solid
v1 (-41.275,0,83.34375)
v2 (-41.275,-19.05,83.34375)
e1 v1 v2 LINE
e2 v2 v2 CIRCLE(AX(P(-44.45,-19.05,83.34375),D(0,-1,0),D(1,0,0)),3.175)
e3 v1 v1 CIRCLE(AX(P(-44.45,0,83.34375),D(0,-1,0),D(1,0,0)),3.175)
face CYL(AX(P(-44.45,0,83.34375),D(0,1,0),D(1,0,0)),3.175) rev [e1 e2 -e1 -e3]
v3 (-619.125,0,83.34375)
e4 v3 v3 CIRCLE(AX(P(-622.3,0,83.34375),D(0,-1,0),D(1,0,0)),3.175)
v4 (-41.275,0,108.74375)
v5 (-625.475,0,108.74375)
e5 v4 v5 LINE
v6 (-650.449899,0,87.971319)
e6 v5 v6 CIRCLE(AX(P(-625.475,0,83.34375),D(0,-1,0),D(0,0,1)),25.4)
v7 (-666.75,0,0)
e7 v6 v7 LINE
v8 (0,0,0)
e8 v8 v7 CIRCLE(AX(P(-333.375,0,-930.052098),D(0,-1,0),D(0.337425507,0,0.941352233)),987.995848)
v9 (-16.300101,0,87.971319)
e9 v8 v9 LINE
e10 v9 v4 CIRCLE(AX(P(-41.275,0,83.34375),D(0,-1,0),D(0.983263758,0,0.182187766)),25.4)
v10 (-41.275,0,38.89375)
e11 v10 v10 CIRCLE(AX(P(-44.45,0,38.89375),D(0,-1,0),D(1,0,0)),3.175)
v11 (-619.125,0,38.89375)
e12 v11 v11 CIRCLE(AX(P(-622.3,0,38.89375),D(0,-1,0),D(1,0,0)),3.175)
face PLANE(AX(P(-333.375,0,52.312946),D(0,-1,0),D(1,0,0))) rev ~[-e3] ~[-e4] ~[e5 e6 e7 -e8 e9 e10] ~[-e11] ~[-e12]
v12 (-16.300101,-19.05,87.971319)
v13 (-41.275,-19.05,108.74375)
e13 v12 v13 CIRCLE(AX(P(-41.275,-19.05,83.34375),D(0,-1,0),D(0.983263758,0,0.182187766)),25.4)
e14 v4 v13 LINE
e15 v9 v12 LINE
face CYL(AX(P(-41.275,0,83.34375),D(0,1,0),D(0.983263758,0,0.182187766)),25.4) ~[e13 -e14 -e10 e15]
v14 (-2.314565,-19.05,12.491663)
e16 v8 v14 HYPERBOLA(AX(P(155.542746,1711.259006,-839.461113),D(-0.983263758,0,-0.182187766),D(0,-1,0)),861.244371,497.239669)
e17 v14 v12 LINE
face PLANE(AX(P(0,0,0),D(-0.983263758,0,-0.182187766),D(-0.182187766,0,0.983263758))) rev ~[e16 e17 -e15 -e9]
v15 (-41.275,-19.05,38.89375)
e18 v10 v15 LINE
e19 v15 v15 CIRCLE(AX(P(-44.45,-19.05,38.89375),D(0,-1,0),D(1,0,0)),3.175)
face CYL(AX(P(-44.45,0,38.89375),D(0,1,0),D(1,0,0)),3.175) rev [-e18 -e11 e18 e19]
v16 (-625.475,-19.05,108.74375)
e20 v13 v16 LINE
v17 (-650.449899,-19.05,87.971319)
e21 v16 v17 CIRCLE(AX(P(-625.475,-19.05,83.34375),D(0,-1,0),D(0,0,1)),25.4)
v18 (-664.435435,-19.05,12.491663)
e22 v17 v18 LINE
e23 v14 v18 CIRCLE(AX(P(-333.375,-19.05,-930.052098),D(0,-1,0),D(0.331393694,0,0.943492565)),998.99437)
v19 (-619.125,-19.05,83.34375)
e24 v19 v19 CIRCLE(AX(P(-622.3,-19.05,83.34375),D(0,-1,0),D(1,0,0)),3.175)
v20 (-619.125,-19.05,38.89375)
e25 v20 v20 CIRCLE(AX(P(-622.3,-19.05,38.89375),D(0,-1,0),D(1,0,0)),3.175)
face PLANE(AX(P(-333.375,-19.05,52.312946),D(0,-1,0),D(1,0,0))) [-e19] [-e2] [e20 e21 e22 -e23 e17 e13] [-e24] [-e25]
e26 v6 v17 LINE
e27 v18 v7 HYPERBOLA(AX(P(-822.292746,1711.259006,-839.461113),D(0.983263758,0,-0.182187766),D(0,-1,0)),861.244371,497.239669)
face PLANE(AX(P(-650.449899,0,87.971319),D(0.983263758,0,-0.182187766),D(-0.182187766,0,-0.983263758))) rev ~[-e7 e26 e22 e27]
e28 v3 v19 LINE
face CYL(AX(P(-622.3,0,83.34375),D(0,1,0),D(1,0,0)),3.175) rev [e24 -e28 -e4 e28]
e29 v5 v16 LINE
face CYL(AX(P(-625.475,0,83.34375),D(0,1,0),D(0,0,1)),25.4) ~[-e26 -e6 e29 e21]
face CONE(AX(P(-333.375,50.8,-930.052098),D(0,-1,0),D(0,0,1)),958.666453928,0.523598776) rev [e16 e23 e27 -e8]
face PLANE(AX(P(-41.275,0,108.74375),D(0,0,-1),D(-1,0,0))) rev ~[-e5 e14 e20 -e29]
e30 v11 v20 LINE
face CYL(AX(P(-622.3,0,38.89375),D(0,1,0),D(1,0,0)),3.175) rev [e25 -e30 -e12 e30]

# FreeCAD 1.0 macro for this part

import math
import FreeCAD as App
import Part
import Sketcher

V = App.Vector
Q = App.Units.Quantity

doc = App.newDocument("Part")
body = doc.addObject("PartDesign::Body", "Body")

# Sketch on XZ plane
sketch1 = doc.addObject("Sketcher::SketchObject", "Sketch")
body.addObject(sketch1)
sketch1.AttachmentSupport = (doc.XZ_Plane, [""])
sketch1.MapMode = "FlatFace"
sketch1.addGeometry([
    Part.LineSegment(V(-666.8, 0, 0), V(0, 0, 0)),  # 0
    Part.LineSegment(V(0, 0, 0), V(-16.3, 88, 0)),  # 1
    Part.ArcOfCircle(Part.Circle(V(-41.3, 83.3, 0), V(0, 0, 1), 25.4), math.radians(10), math.radians(90)),  # 2
    Part.LineSegment(V(-41.3, 108.7, 0), V(-625.5, 108.7, 0)),  # 3
    Part.ArcOfCircle(Part.Circle(V(-625.5, 83.3, 0), V(0, 0, 1), 25.4), math.radians(90), math.radians(170)),  # 4
    Part.LineSegment(V(-650.4, 88, 0), V(-666.8, 0, 0)),  # 5
    Part.Circle(V(-622.3, 38.9, 0), V(0, 0, 1), 3.2),  # 6
    Part.Circle(V(-44.5, 38.9, 0), V(0, 0, 1), 3.2),  # 7
    Part.Circle(V(-622.3, 83.3, 0), V(0, 0, 1), 3.2),  # 8
    Part.Circle(V(-44.5, 83.3, 0), V(0, 0, 1), 3.2),  # 9
], False)
sketch1.addConstraint([
    Sketcher.Constraint("Coincident", 0, 2, 1, 1),
    Sketcher.Constraint("Tangent", 1, 2, 2, 1),
    Sketcher.Constraint("Tangent", 2, 2, 3, 1),
    Sketcher.Constraint("Tangent", 3, 2, 4, 1),
    Sketcher.Constraint("Tangent", 4, 2, 5, 1),
    Sketcher.Constraint("Coincident", 5, 2, 0, 1),
    Sketcher.Constraint("Horizontal", 0),
    Sketcher.Constraint("Horizontal", 3),
    Sketcher.Constraint("Coincident", 0, 2, -1, 1),
    Sketcher.Constraint("Equal", 2, 4),
    Sketcher.Constraint("Equal", 6, 7),
    Sketcher.Constraint("Equal", 7, 8),
    Sketcher.Constraint("Equal", 8, 9),
    Sketcher.Constraint("Horizontal", 6, 3, 7, 3),
    Sketcher.Constraint("Horizontal", 4, 3, 8, 3),
    Sketcher.Constraint("Horizontal", 8, 3, 9, 3),
    Sketcher.Constraint("Horizontal", 1, 2, 4, 2),
    Sketcher.Constraint("Vertical", 6, 3, 8, 3),
    Sketcher.Constraint("Vertical", 7, 3, 9, 3),
    Sketcher.Constraint("Radius", 2, Q("1 in")),
    Sketcher.Constraint("Diameter", 6, Q("0.25 in")),
    Sketcher.Constraint("DistanceX", 3, 2, 3, 1, Q("23 in")),
    Sketcher.Constraint("DistanceX", 0, 1, 0, 2, Q("26.25 in")),
    Sketcher.Constraint("DistanceX", 6, 3, -1, 1, Q("24.5 in")),
    Sketcher.Constraint("DistanceX", 7, 3, -1, 1, Q("1.75 in")),
    Sketcher.Constraint("DistanceY", 6, 3, 4, 3, Q("1.75 in")),
    Sketcher.Constraint("DistanceY", -1, 1, 2, 3, Q("3.28125 in")),
])
pad1 = doc.addObject("PartDesign::Pad", "Pad")
body.addObject(pad1)
pad1.Profile = sketch1
pad1.Length = Q("0.75 in")

# Sketch on YZ plane
sketch2 = doc.addObject("Sketcher::SketchObject", "Sketch001")
body.addObject(sketch2)
sketch2.AttachmentSupport = (doc.YZ_Plane, [""])
sketch2.MapMode = "FlatFace"
sketch2.AttachmentOffset = App.Placement(V(0, 0, -13.125 * 25.4), App.Rotation())
sketch2.addGeometry([
    Part.LineSegment(V(51, 29, 0), V(-51, 87, 0)),
    Part.LineSegment(V(-51, 87, 0), V(-51, -930, 0)),
    Part.LineSegment(V(-51, -930, 0), V(51, -930, 0)),
    Part.LineSegment(V(51, -930, 0), V(51, 29, 0)),
], False)
sketch2.addGeometry(Part.LineSegment(V(-51, -930, 0), V(51, -930, 0)), True)  # axis
sketch2.addConstraint([
    Sketcher.Constraint("Coincident", 0, 2, 1, 1),
    Sketcher.Constraint("Coincident", 1, 2, 2, 1),
    Sketcher.Constraint("Coincident", 2, 2, 3, 1),
    Sketcher.Constraint("Coincident", 3, 2, 0, 1),
    Sketcher.Constraint("Vertical", 1),
    Sketcher.Constraint("Horizontal", 2),
    Sketcher.Constraint("Vertical", 3),
    Sketcher.Constraint("Horizontal", 4),
    Sketcher.Constraint("Coincident", 4, 1, 1, 2),
    Sketcher.Constraint("Vertical", 3, 2, 4, 2),
    Sketcher.Constraint("DistanceX", 2, 1, 2, 2, Q("4 in")),
    Sketcher.Constraint("DistanceX", 0, 2, -1, 1, Q("2 in")),
    Sketcher.Constraint("Angle", 0, Q("150 deg")),
    Sketcher.Constraint("DistanceY", 1, 2, 1, 1, Q("1017.325241 mm")),
    Sketcher.Constraint("DistanceY", -1, 1, 0, 2, Q("87.273144 mm")),
])
groove = doc.addObject("PartDesign::Groove", "Groove")
body.addObject(groove)
groove.Profile = sketch2
groove.ReferenceAxis = (sketch2, ["Axis0"])
groove.Angle = 360

doc.recompute()
